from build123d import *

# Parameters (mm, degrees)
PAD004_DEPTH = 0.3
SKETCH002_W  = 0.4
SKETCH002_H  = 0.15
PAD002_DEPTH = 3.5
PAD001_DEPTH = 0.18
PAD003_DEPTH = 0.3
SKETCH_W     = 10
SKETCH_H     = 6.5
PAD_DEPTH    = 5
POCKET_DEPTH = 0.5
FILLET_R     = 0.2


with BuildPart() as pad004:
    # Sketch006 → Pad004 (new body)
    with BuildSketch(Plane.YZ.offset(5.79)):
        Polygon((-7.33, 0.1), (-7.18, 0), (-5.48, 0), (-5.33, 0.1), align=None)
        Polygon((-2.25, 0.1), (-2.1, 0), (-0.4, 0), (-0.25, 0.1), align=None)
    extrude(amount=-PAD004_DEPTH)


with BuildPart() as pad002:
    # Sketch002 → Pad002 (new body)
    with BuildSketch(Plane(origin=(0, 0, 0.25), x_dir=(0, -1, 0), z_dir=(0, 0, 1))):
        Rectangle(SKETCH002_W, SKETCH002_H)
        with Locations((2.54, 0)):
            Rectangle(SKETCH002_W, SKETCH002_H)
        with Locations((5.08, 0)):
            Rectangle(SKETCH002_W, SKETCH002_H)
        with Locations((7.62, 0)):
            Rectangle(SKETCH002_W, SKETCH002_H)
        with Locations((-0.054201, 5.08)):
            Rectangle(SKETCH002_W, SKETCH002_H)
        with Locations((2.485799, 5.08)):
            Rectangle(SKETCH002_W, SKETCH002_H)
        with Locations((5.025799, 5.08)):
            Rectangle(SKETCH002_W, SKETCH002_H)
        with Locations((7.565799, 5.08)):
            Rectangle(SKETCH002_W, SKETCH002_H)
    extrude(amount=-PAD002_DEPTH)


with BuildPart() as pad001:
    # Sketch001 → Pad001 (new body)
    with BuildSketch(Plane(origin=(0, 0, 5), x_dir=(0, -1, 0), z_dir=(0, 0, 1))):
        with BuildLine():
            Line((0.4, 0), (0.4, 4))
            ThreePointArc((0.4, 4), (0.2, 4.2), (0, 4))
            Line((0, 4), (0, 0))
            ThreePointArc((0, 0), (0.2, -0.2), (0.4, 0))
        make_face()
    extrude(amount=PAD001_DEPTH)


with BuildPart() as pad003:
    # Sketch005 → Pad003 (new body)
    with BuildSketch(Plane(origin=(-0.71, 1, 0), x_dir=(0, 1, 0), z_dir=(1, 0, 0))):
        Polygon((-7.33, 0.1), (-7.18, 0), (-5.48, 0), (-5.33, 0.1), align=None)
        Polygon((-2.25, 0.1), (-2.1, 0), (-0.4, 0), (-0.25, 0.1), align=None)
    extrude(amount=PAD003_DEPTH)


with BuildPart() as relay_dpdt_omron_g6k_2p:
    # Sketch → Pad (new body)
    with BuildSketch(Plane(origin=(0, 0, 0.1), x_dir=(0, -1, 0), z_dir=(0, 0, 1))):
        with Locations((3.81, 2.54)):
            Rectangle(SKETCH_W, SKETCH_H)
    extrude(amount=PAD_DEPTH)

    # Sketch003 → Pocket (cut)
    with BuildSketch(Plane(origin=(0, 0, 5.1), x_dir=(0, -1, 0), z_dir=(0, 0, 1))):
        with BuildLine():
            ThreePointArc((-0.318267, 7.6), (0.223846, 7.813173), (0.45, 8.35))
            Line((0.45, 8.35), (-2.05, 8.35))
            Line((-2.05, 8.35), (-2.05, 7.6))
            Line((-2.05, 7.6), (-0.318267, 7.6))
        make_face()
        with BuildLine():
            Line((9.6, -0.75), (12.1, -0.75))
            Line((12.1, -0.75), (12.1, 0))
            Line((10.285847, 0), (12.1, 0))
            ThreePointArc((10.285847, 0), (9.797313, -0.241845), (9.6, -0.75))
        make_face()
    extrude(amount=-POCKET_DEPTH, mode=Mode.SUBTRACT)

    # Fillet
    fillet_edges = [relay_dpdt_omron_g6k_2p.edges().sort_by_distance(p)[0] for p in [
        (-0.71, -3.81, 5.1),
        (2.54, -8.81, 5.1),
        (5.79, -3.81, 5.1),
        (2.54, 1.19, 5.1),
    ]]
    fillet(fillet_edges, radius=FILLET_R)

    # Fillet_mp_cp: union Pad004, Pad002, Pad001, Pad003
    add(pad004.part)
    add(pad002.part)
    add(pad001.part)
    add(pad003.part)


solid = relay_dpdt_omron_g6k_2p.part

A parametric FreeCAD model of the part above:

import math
import FreeCAD as App
import Part
import Sketcher
from FreeCAD import Vector


def edges_at(feature, points):
    """Names of the edges that pass closest to the given points."""
    edges = feature.Shape.Edges
    near = lambda p: min(range(len(edges)), key=lambda i: edges[i].distToShape(Part.Vertex(*p))[0])
    return sorted({f"Edge{near(p) + 1}" for p in points})


def add_polygon(sketch, points):
    """Adds a closed chain of lines whose ends are joined by coincident constraints."""
    first, n = sketch.GeometryCount, len(points)
    for a, b in zip(points, points[1:] + points[:1]):
        sketch.addGeometry(Part.LineSegment(App.Vector(*a, 0), App.Vector(*b, 0)), False)
    for i in range(n):
        sketch.addConstraint(Sketcher.Constraint("Coincident", first + i, 2, first + (i + 1) % n, 1))

doc = App.newDocument("Part")
params = doc.addObject("Spreadsheet::Sheet", "Params")
for row, (alias, value) in enumerate([
    ("sketch1_width", "2 mm"),
    ("sketch1_width2", "1.7 mm"),
    ("pad1_length", "0.3 mm"),
    ("sketch2_height", "0.4 mm"),
    ("sketch2_width", "0.15 mm"),
    ("pad2_length", "3.5 mm"),
    ("sketch3_radius", "0.2 mm"),
    ("sketch3_width", "4 mm"),
    ("pad3_length", "0.18 mm"),
    ("sketch4_width", "2 mm"),
    ("sketch4_width2", "1.7 mm"),
    ("pad4_length", "0.3 mm"),
    ("sketch5_height", "10 mm"),
    ("sketch5_width", "6.5 mm"),
    ("pad5_length", "5 mm"),
    ("sketch6_height", "2.5 mm"),
    ("sketch6_height2", "2.5 mm"),
    ("sketch6_width", "0.75 mm"),
    ("sketch6_width2", "0.75 mm"),
    ("pocket1_length", "0.5 mm"),
    ("fillet_radius", "0.2 mm"),
], start=1):
    params.set(f"A{row}", alias)
    params.set(f"B{row}", "=" + value)
    params.setAlias(f"B{row}", alias)

body = doc.addObject("PartDesign::Body", "Body")
body.AllowCompound = True

# Sketch on YZ plane
sketch1 = doc.addObject("Sketcher::SketchObject", "Sketch")
body.addObject(sketch1)
sketch1.AttachmentSupport = (doc.YZ_Plane, [""])
sketch1.MapMode = "FlatFace"
sketch1.AttachmentOffset = App.Placement(Vector(0, 0, 5.79), App.Rotation())
add_polygon(sketch1, [(-7.33, 0.1), (-7.18, 0), (-5.48, 0), (-5.33, 0.1)])  # lines 0-3
add_polygon(sketch1, [(-2.25, 0.1), (-2.1, 0), (-0.4, 0), (-0.25, 0.1)])  # lines 4-7
sketch1.addConstraint(Sketcher.Constraint("Horizontal", 1))
sketch1.addConstraint(Sketcher.Constraint("Horizontal", 3))
sketch1.addConstraint(Sketcher.Constraint("Horizontal", 5))
sketch1.addConstraint(Sketcher.Constraint("Horizontal", 7))
sketch1.addConstraint(Sketcher.Constraint("PointOnObject", 0, 2, -1))
sketch1.addConstraint(Sketcher.Constraint("PointOnObject", 4, 2, -1))
sketch1.addConstraint(Sketcher.Constraint("Parallel", 0, 4))
sketch1.addConstraint(Sketcher.Constraint("Parallel", 2, 6))
sketch1.addConstraint(Sketcher.Constraint("Horizontal", 3, 2, 6, 2))
sketch1.addConstraint(Sketcher.Constraint("Equal", 1, 5))
sketch1.addConstraint(Sketcher.Constraint("Equal", 0, 2))
sketch1.addConstraint(Sketcher.Constraint("DistanceX", 3, 2, 3, 1, 2.0))
sketch1.addConstraint(Sketcher.Constraint("DistanceX", 1, 1, 1, 2, 1.7))
sketch1.addConstraint(Sketcher.Constraint("DistanceY", -1, 1, 2, 2, 0.1))
sketch1.addConstraint(Sketcher.Constraint("DistanceX", 4, 2, -1, 1, 2.1))
sketch1.addConstraint(Sketcher.Constraint("DistanceX", 0, 2, -1, 1, 7.18))
sketch1.setExpression("Constraints[19]", "Params.sketch1_width")
sketch1.setExpression("Constraints[20]", "Params.sketch1_width2")
pad1 = doc.addObject("PartDesign::Pad", "Pad")
body.addObject(pad1)
pad1.Profile = sketch1
pad1.setExpression("Length", "Params.pad1_length")
pad1.Reversed = True
body2 = doc.addObject("PartDesign::Body", "Body001")
body2.AllowCompound = True

# Sketch on XY plane
sketch2 = doc.addObject("Sketcher::SketchObject", "Sketch001")
body2.addObject(sketch2)
sketch2.AttachmentSupport = (doc.getObject("XY_Plane001"), [""])
sketch2.MapMode = "FlatFace"
sketch2.AttachmentOffset = App.Placement(Vector(0, 0, 0.25), App.Rotation())
add_polygon(sketch2, [(0.07, 0.2), (-0.07, 0.2), (-0.07, -0.2), (0.07, -0.2)])  # lines 0-3
add_polygon(sketch2, [(0.07, -2.34), (-0.07, -2.34), (-0.07, -2.74), (0.07, -2.74)])  # lines 4-7
add_polygon(sketch2, [(0.07, -4.88), (-0.07, -4.88), (-0.07, -5.28), (0.07, -5.28)])  # lines 8-11
add_polygon(sketch2, [(0.07, -7.42), (-0.07, -7.42), (-0.07, -7.82), (0.07, -7.82)])  # lines 12-15
add_polygon(sketch2, [(5.16, 0.25), (5, 0.25), (5, -0.15), (5.16, -0.15)])  # lines 16-19
add_polygon(sketch2, [(5.16, -2.29), (5, -2.29), (5, -2.69), (5.16, -2.69)])  # lines 20-23
add_polygon(sketch2, [(5.16, -4.83), (5, -4.83), (5, -5.23), (5.16, -5.23)])  # lines 24-27
add_polygon(sketch2, [(5.16, -7.37), (5, -7.37), (5, -7.77), (5.16, -7.77)])  # lines 28-31
sketch2.addConstraint(Sketcher.Constraint("Horizontal", 0))
sketch2.addConstraint(Sketcher.Constraint("Vertical", 1))
sketch2.addConstraint(Sketcher.Constraint("Horizontal", 2))
sketch2.addConstraint(Sketcher.Constraint("Vertical", 3))
sketch2.addConstraint(Sketcher.Constraint("Horizontal", 4))
sketch2.addConstraint(Sketcher.Constraint("Vertical", 5))
sketch2.addConstraint(Sketcher.Constraint("Horizontal", 6))
sketch2.addConstraint(Sketcher.Constraint("Vertical", 7))
sketch2.addConstraint(Sketcher.Constraint("Horizontal", 8))
sketch2.addConstraint(Sketcher.Constraint("Vertical", 9))
sketch2.addConstraint(Sketcher.Constraint("Horizontal", 10))
sketch2.addConstraint(Sketcher.Constraint("Vertical", 11))
sketch2.addConstraint(Sketcher.Constraint("Horizontal", 12))
sketch2.addConstraint(Sketcher.Constraint("Vertical", 13))
sketch2.addConstraint(Sketcher.Constraint("Horizontal", 14))
sketch2.addConstraint(Sketcher.Constraint("Vertical", 15))
sketch2.addConstraint(Sketcher.Constraint("Horizontal", 16))
sketch2.addConstraint(Sketcher.Constraint("Vertical", 17))
sketch2.addConstraint(Sketcher.Constraint("Horizontal", 18))
sketch2.addConstraint(Sketcher.Constraint("Vertical", 19))
sketch2.addConstraint(Sketcher.Constraint("Horizontal", 20))
sketch2.addConstraint(Sketcher.Constraint("Vertical", 21))
sketch2.addConstraint(Sketcher.Constraint("Horizontal", 22))
sketch2.addConstraint(Sketcher.Constraint("Vertical", 23))
sketch2.addConstraint(Sketcher.Constraint("Horizontal", 24))
sketch2.addConstraint(Sketcher.Constraint("Vertical", 25))
sketch2.addConstraint(Sketcher.Constraint("Horizontal", 26))
sketch2.addConstraint(Sketcher.Constraint("Vertical", 27))
sketch2.addConstraint(Sketcher.Constraint("Horizontal", 28))
sketch2.addConstraint(Sketcher.Constraint("Vertical", 29))
sketch2.addConstraint(Sketcher.Constraint("Horizontal", 30))
sketch2.addConstraint(Sketcher.Constraint("Vertical", 31))
sketch2.addConstraint(Sketcher.Constraint("Symmetric", 0, 2, 2, 2, -1, 1))
sketch2.addConstraint(Sketcher.Constraint("Vertical", 1, 2, 4, 2))
sketch2.addConstraint(Sketcher.Constraint("Vertical", 3, 2, 6, 2))
sketch2.addConstraint(Sketcher.Constraint("Vertical", 5, 2, 8, 2))
sketch2.addConstraint(Sketcher.Constraint("Vertical", 7, 2, 10, 2))
sketch2.addConstraint(Sketcher.Constraint("Vertical", 9, 2, 12, 2))
sketch2.addConstraint(Sketcher.Constraint("Vertical", 11, 2, 14, 2))
sketch2.addConstraint(Sketcher.Constraint("Vertical", 17, 2, 20, 2))
sketch2.addConstraint(Sketcher.Constraint("Vertical", 19, 2, 22, 2))
sketch2.addConstraint(Sketcher.Constraint("Vertical", 21, 2, 24, 2))
sketch2.addConstraint(Sketcher.Constraint("Vertical", 23, 2, 26, 2))
sketch2.addConstraint(Sketcher.Constraint("Vertical", 25, 2, 28, 2))
sketch2.addConstraint(Sketcher.Constraint("Vertical", 27, 2, 30, 2))
sketch2.addConstraint(Sketcher.Constraint("Equal", 14, 16))
sketch2.addConstraint(Sketcher.Constraint("Equal", 3, 5))
sketch2.addConstraint(Sketcher.Constraint("Equal", 7, 9))
sketch2.addConstraint(Sketcher.Constraint("Equal", 11, 13))
sketch2.addConstraint(Sketcher.Constraint("Equal", 15, 17))
sketch2.addConstraint(Sketcher.Constraint("Equal", 19, 21))
sketch2.addConstraint(Sketcher.Constraint("Equal", 23, 25))
sketch2.addConstraint(Sketcher.Constraint("Equal", 27, 29))
sketch2.addConstraint(Sketcher.Constraint("DistanceY", 1, 2, 1, 1, 0.4))
sketch2.addConstraint(Sketcher.Constraint("DistanceX", 0, 2, 0, 1, 0.15))
sketch2.addConstraint(Sketcher.Constraint("DistanceY", 4, 2, -1, 1, 2.34))
sketch2.addConstraint(Sketcher.Constraint("DistanceY", 8, 2, -1, 1, 4.88))
sketch2.addConstraint(Sketcher.Constraint("DistanceY", 12, 2, -1, 1, 7.42))
sketch2.addConstraint(Sketcher.Constraint("DistanceX", 3, 2, 16, 2, 4.93))
sketch2.addConstraint(Sketcher.Constraint("DistanceY", 20, 2, 17, 2, 2.14))
sketch2.addConstraint(Sketcher.Constraint("DistanceY", 24, 2, 21, 2, 2.14))
sketch2.addConstraint(Sketcher.Constraint("DistanceY", 28, 2, 25, 2, 2.14))
sketch2.addConstraint(Sketcher.Constraint("DistanceY", -1, 1, 16, 2, 0.254201))
sketch2.setExpression("Constraints[85]", "Params.sketch2_height")
sketch2.setExpression("Constraints[86]", "Params.sketch2_width")
pad2 = doc.addObject("PartDesign::Pad", "Pad001")
body2.addObject(pad2)
pad2.Profile = sketch2
pad2.setExpression("Length", "Params.pad2_length")
pad2.Reversed = True
body3 = doc.addObject("PartDesign::Body", "Body002")

# Sketch on XY plane
sketch3 = doc.addObject("Sketcher::SketchObject", "Sketch002")
body3.addObject(sketch3)
sketch3.AttachmentSupport = (doc.getObject("XY_Plane002"), [""])
sketch3.MapMode = "FlatFace"
sketch3.AttachmentOffset = App.Placement(Vector(0, 0, 5), App.Rotation())
sketch3.addGeometry(Part.LineSegment(Vector(0, -0.4, 0), Vector(4, -0.4, 0)), False)
sketch3.addGeometry(Part.ArcOfCircle(Part.Circle(Vector(4, -0.2, 0), Vector(0, 0, 1), 0.2), math.radians(-90), math.radians(90)), False)
sketch3.addGeometry(Part.LineSegment(Vector(4, 0, 0), Vector(0, 0, 0)), False)
sketch3.addGeometry(Part.ArcOfCircle(Part.Circle(Vector(0, -0.2, 0), Vector(0, 0, 1), 0.2), math.radians(90), math.radians(270)), False)
sketch3.addConstraint(Sketcher.Constraint("Tangent", 0, 2, 1, 1))
sketch3.addConstraint(Sketcher.Constraint("Tangent", 1, 2, 2, 1))
sketch3.addConstraint(Sketcher.Constraint("Tangent", 2, 2, 3, 1))
sketch3.addConstraint(Sketcher.Constraint("Tangent", 3, 2, 0, 1))
sketch3.addConstraint(Sketcher.Constraint("Horizontal", 0))
sketch3.addConstraint(Sketcher.Constraint("Horizontal", 2))
sketch3.addConstraint(Sketcher.Constraint("Coincident", 2, 2, -1, 1))
sketch3.addConstraint(Sketcher.Constraint("Radius", 1, 0.2))
sketch3.addConstraint(Sketcher.Constraint("DistanceX", 0, 1, 0, 2, 4.0))
sketch3.setExpression("Constraints[7]", "Params.sketch3_radius")
sketch3.setExpression("Constraints[8]", "Params.sketch3_width")
pad3 = doc.addObject("PartDesign::Pad", "Pad002")
body3.addObject(pad3)
pad3.Profile = sketch3
pad3.setExpression("Length", "Params.pad3_length")
body4 = doc.addObject("PartDesign::Body", "Body003")
body4.AllowCompound = True

# Sketch on YZ plane
sketch4 = doc.addObject("Sketcher::SketchObject", "Sketch003")
body4.addObject(sketch4)
sketch4.AttachmentSupport = (doc.getObject("YZ_Plane003"), [""])
sketch4.MapMode = "FlatFace"
sketch4.AttachmentOffset = App.Placement(Vector(0, 0, -0.71), App.Rotation())
add_polygon(sketch4, [(-6.33, 0.1), (-6.18, 0), (-4.48, 0), (-4.33, 0.1)])  # lines 0-3
add_polygon(sketch4, [(-1.25, 0.1), (-1.1, 0), (0.6, 0), (0.75, 0.1)])  # lines 4-7
sketch4.addConstraint(Sketcher.Constraint("Horizontal", 1))
sketch4.addConstraint(Sketcher.Constraint("Horizontal", 3))
sketch4.addConstraint(Sketcher.Constraint("Horizontal", 5))
sketch4.addConstraint(Sketcher.Constraint("Horizontal", 7))
sketch4.addConstraint(Sketcher.Constraint("PointOnObject", 0, 2, -1))
sketch4.addConstraint(Sketcher.Constraint("PointOnObject", 4, 2, -1))
sketch4.addConstraint(Sketcher.Constraint("Parallel", 0, 4))
sketch4.addConstraint(Sketcher.Constraint("Parallel", 2, 6))
sketch4.addConstraint(Sketcher.Constraint("Horizontal", 3, 2, 6, 2))
sketch4.addConstraint(Sketcher.Constraint("Equal", 1, 5))
sketch4.addConstraint(Sketcher.Constraint("Equal", 0, 2))
sketch4.addConstraint(Sketcher.Constraint("DistanceX", 3, 2, 3, 1, 2.0))
sketch4.addConstraint(Sketcher.Constraint("DistanceX", 1, 1, 1, 2, 1.7))
sketch4.addConstraint(Sketcher.Constraint("DistanceY", -1, 1, 2, 2, 0.1))
sketch4.addConstraint(Sketcher.Constraint("DistanceX", 4, 2, -1, 1, 1.1))
sketch4.addConstraint(Sketcher.Constraint("DistanceX", 0, 2, -1, 1, 6.18))
sketch4.setExpression("Constraints[19]", "Params.sketch4_width")
sketch4.setExpression("Constraints[20]", "Params.sketch4_width2")
pad4 = doc.addObject("PartDesign::Pad", "Pad003")
body4.addObject(pad4)
pad4.Profile = sketch4
pad4.setExpression("Length", "Params.pad4_length")
body5 = doc.addObject("PartDesign::Body", "Body004")

# Sketch on XY plane
sketch5 = doc.addObject("Sketcher::SketchObject", "Sketch004")
body5.addObject(sketch5)
sketch5.AttachmentSupport = (doc.getObject("XY_Plane004"), [""])
sketch5.MapMode = "FlatFace"
sketch5.AttachmentOffset = App.Placement(Vector(0, 0, 0.1), App.Rotation())
add_polygon(sketch5, [(6, 1), (-1, 1), (-1, -9), (6, -9)])  # lines 0-3
sketch5.addConstraint(Sketcher.Constraint("Horizontal", 0))
sketch5.addConstraint(Sketcher.Constraint("Vertical", 1))
sketch5.addConstraint(Sketcher.Constraint("Horizontal", 2))
sketch5.addConstraint(Sketcher.Constraint("Vertical", 3))
sketch5.addConstraint(Sketcher.Constraint("DistanceY", 1, 2, 1, 1, 10.0))
sketch5.addConstraint(Sketcher.Constraint("DistanceX", 0, 2, 0, 1, 6.5))
sketch5.addConstraint(Sketcher.Constraint("DistanceX", 0, 2, -1, 1, 0.71))
sketch5.addConstraint(Sketcher.Constraint("DistanceY", -1, 1, 0, 2, 1.19))
sketch5.setExpression("Constraints[8]", "Params.sketch5_height")
sketch5.setExpression("Constraints[9]", "Params.sketch5_width")
pad5 = doc.addObject("PartDesign::Pad", "Pad004")
body5.addObject(pad5)
pad5.Profile = sketch5
pad5.setExpression("Length", "Params.pad5_length")

# Sketch on XY plane
sketch6 = doc.addObject("Sketcher::SketchObject", "Sketch005")
body5.addObject(sketch6)
sketch6.AttachmentSupport = (doc.getObject("XY_Plane004"), [""])
sketch6.MapMode = "FlatFace"
sketch6.AttachmentOffset = App.Placement(Vector(0, 0, 5.1), App.Rotation())
sketch6.addGeometry(Part.ArcOfCircle(Part.Circle(Vector(8.350001, 0.300218, 0), Vector(0, 0, 1), 0.750218), math.radians(178.621405), math.radians(269.999956)), False)
sketch6.addGeometry(Part.LineSegment(Vector(8.35, -0.45, 0), Vector(8.35, 2.05, 0)), False)
sketch6.addGeometry(Part.LineSegment(Vector(8.35, 2.05, 0), Vector(7.6, 2.05, 0)), False)
sketch6.addGeometry(Part.LineSegment(Vector(7.6, 2.05, 0), Vector(7.6, 0.318267, 0)), False)
sketch6.addGeometry(Part.LineSegment(Vector(-0.75, -9.6, 0), Vector(-0.75, -12.1, 0)), False)
sketch6.addGeometry(Part.LineSegment(Vector(-0.75, -12.1, 0), Vector(0, -12.1, 0)), False)
sketch6.addGeometry(Part.LineSegment(Vector(0, -12.1, 0), Vector(0, -10.285847, 0)), False)
sketch6.addGeometry(Part.ArcOfCircle(Part.Circle(Vector(-0.749999, -10.353, 0), Vector(0, 0, 1), 0.753), math.radians(5.116445), math.radians(90.000051)), False)
sketch6.addConstraint(Sketcher.Constraint("Coincident", 0, 2, 1, 1))
sketch6.addConstraint(Sketcher.Constraint("Coincident", 1, 2, 2, 1))
sketch6.addConstraint(Sketcher.Constraint("Coincident", 2, 2, 3, 1))
sketch6.addConstraint(Sketcher.Constraint("Coincident", 3, 2, 0, 1))
sketch6.addConstraint(Sketcher.Constraint("Coincident", 4, 2, 5, 1))
sketch6.addConstraint(Sketcher.Constraint("Coincident", 5, 2, 6, 1))
sketch6.addConstraint(Sketcher.Constraint("Coincident", 6, 2, 7, 1))
sketch6.addConstraint(Sketcher.Constraint("Coincident", 7, 2, 4, 1))
sketch6.addConstraint(Sketcher.Constraint("Vertical", 1))
sketch6.addConstraint(Sketcher.Constraint("Horizontal", 2))
sketch6.addConstraint(Sketcher.Constraint("Vertical", 3))
sketch6.addConstraint(Sketcher.Constraint("Vertical", 4))
sketch6.addConstraint(Sketcher.Constraint("Horizontal", 5))
sketch6.addConstraint(Sketcher.Constraint("Vertical", 6))
sketch6.addConstraint(Sketcher.Constraint("PointOnObject", 5, 2, -2))
sketch6.addConstraint(Sketcher.Constraint("DistanceY", 1, 1, 1, 2, 2.5))
sketch6.addConstraint(Sketcher.Constraint("DistanceY", 4, 2, 4, 1, 2.5))
sketch6.addConstraint(Sketcher.Constraint("Radius", 7, 0.753))
sketch6.addConstraint(Sketcher.Constraint("DistanceX", 2, 2, 2, 1, 0.75))
sketch6.addConstraint(Sketcher.Constraint("DistanceX", 5, 1, 5, 2, 0.75))
sketch6.addConstraint(Sketcher.Constraint("DistanceX", -1, 1, 2, 2, 7.6))
sketch6.addConstraint(Sketcher.Constraint("DistanceY", 4, 2, -1, 1, 12.1))
sketch6.addConstraint(Sketcher.Constraint("DistanceX", 7, 3, 0, 3, 9.1))
sketch6.addConstraint(Sketcher.Constraint("DistanceX", 7, 3, 0, 2, 9.099999))
sketch6.addConstraint(Sketcher.Constraint("DistanceY", 0, 2, -1, 1, 0.45))
sketch6.addConstraint(Sketcher.Constraint("Radius", 0, 0.750218))
sketch6.setExpression("Constraints[15]", "Params.sketch6_height")
sketch6.setExpression("Constraints[16]", "Params.sketch6_height2")
sketch6.setExpression("Constraints[18]", "Params.sketch6_width")
sketch6.setExpression("Constraints[19]", "Params.sketch6_width2")
pocket1 = doc.addObject("PartDesign::Pocket", "Pocket")
body5.addObject(pocket1)
pocket1.Profile = sketch6
pocket1.setExpression("Length", "Params.pocket1_length")
doc.recompute()

fillet = doc.addObject("PartDesign::Fillet", "Fillet")
body5.addObject(fillet)
fillet.Base = (pocket1, edges_at(pocket1, [
    (-0.71, -3.81, 5.1),
    (2.54, -8.81, 5.1),
    (5.79, -3.81, 5.1),
    (2.54, 1.19, 5.1),
]))
fillet.setExpression("Radius", "Params.fillet_radius")
doc.recompute()

boolean = doc.addObject("PartDesign::Boolean", "Boolean")
body5.addObject(boolean)
boolean.Type = "Fuse"
boolean.addObjects([body])
doc.recompute()

boolean2 = doc.addObject("PartDesign::Boolean", "Boolean001")
body5.addObject(boolean2)
boolean2.Type = "Fuse"
boolean2.addObjects([body2])
doc.recompute()

boolean3 = doc.addObject("PartDesign::Boolean", "Boolean002")
body5.addObject(boolean3)
boolean3.Type = "Fuse"
boolean3.addObjects([body3])
doc.recompute()

boolean4 = doc.addObject("PartDesign::Boolean", "Boolean003")
body5.addObject(boolean4)
boolean4.Type = "Fuse"
boolean4.addObjects([body4])

doc.recompute()
